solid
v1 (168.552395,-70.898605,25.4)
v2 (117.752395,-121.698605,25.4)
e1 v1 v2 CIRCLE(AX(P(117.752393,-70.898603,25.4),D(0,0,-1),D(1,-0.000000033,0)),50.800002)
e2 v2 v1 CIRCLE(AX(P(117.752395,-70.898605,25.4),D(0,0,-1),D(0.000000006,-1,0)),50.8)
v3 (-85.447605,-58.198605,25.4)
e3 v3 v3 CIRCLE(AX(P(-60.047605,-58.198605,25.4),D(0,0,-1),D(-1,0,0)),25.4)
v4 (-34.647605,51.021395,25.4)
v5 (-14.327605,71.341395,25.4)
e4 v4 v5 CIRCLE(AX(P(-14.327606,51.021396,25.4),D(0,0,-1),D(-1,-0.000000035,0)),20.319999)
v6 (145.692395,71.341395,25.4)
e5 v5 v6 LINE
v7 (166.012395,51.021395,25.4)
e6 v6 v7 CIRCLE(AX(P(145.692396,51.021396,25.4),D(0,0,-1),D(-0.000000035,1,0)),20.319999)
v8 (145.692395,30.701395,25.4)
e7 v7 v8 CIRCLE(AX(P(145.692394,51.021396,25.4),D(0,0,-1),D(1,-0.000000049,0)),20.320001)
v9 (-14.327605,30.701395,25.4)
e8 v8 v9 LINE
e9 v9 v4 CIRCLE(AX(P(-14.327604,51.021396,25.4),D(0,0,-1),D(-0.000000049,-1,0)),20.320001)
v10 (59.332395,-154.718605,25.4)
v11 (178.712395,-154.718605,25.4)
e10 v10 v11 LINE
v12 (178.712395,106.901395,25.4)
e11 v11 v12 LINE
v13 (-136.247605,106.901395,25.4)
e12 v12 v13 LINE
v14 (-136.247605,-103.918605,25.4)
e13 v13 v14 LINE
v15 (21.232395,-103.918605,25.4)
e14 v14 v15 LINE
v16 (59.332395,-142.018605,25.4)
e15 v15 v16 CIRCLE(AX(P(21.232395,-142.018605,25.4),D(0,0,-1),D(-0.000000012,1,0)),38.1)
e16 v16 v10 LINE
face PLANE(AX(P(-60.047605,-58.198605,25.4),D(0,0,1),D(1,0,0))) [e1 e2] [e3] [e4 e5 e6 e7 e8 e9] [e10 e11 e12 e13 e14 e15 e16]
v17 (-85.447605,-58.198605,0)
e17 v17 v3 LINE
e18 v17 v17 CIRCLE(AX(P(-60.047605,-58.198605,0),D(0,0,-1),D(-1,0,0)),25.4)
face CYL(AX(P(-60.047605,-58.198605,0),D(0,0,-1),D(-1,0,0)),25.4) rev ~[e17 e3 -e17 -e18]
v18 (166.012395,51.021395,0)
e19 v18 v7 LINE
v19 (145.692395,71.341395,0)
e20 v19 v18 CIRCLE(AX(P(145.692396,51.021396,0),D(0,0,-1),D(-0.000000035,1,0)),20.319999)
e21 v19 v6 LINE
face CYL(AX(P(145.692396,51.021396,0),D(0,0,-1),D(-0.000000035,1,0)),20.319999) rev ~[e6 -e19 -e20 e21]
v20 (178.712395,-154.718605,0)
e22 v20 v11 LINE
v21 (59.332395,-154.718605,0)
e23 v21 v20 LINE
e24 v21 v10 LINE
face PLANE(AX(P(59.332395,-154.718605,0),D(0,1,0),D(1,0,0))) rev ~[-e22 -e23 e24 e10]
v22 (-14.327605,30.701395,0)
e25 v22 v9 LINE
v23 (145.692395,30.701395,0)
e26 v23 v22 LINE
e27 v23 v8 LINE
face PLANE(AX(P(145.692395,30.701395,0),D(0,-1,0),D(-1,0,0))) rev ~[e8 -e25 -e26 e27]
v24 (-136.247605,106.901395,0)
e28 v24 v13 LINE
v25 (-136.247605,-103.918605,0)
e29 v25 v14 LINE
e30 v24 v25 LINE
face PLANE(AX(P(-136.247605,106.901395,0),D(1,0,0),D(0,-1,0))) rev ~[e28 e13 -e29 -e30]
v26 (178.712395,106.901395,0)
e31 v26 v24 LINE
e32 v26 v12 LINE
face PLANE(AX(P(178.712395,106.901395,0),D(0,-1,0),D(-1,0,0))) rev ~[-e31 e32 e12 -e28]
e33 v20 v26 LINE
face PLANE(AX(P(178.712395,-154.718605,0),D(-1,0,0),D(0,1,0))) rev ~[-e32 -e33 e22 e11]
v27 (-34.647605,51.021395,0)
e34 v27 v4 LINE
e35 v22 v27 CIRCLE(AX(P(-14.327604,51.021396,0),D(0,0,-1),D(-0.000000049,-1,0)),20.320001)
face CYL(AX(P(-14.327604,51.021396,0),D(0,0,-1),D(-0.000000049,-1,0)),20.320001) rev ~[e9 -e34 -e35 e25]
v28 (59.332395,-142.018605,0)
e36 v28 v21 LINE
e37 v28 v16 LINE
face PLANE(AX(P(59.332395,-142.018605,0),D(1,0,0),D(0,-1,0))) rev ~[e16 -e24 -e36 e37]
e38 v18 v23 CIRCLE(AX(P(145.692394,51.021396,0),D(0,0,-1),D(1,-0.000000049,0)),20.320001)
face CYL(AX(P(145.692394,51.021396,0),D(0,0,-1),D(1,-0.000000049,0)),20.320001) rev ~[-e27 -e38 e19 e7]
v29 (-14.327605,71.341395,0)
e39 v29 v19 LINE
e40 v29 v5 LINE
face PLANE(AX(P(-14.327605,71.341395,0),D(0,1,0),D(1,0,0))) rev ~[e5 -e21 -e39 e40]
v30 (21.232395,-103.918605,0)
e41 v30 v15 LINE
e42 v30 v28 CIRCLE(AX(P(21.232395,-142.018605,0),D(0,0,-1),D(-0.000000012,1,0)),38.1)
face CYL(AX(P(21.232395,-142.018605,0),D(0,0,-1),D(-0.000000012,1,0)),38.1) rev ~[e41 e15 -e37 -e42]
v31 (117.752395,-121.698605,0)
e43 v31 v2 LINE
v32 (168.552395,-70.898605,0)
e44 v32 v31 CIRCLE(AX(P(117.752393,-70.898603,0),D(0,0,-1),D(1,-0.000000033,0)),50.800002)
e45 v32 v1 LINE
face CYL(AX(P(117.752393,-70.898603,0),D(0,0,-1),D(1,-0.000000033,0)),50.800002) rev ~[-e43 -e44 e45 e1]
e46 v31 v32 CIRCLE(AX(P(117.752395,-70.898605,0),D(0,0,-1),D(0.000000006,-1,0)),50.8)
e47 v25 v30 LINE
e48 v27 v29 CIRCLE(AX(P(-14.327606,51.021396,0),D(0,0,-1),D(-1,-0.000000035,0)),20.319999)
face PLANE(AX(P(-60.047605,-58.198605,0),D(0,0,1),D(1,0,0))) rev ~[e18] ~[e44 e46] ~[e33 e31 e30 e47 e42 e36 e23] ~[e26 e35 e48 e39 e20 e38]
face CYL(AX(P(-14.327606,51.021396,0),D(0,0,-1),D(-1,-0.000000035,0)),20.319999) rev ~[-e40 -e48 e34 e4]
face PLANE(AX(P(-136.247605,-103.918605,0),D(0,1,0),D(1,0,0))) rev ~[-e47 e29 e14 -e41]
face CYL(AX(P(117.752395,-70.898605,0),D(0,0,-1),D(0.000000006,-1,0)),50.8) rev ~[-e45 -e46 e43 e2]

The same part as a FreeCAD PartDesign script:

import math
import FreeCAD as App
import Part
import Sketcher

V = App.Vector
Q = App.Units.Quantity

doc = App.newDocument("Part")
body = doc.addObject("PartDesign::Body", "Body")

sketch1 = body.newObject("Sketcher::SketchObject", "Sketch")
sketch1.AttachmentSupport = (doc.getObject("XY_Plane"), [""])
sketch1.MapMode = "FlatFace"
sketch1.addGeometry([
    Part.LineSegment(V(178.712395, 106.901395, 0), V(-136.247605, 106.901395, 0)),
    Part.LineSegment(V(-136.247605, 106.901395, 0), V(-136.247605, -103.918605, 0)),
    Part.LineSegment(V(-136.247605, -103.918605, 0), V(21.232395, -103.918605, 0)),
    Part.ArcOfCircle(Part.Circle(V(21.232395, -142.018605, 0), V(0, 0, 1), 38.1), math.radians(-0.000001), math.radians(90.000001)),
    Part.LineSegment(V(59.332395, -142.018605, 0), V(59.332395, -154.718605, 0)),
    Part.LineSegment(V(59.332395, -154.718605, 0), V(178.712395, -154.718605, 0)),
    Part.LineSegment(V(178.712395, -154.718605, 0), V(178.712395, 106.901395, 0)),
    Part.Circle(V(-60.047605, -58.198605, 0), V(0, 0, 1), 25.4),
    Part.ArcOfCircle(Part.Circle(V(117.752395, -70.898605, 0), V(0, 0, 1), 50.8), math.radians(0), math.radians(270)),
    Part.ArcOfCircle(Part.Circle(V(117.752393, -70.898603, 0), V(0, 0, 1), 50.800002), math.radians(-89.999998), math.radians(-0.000002)),
    Part.ArcOfCircle(Part.Circle(V(-14.327606, 51.021396, 0), V(0, 0, 1), 20.319999), math.radians(89.999998), math.radians(180.000002)),
    Part.LineSegment(V(-14.327605, 71.341395, 0), V(145.692395, 71.341395, 0)),
    Part.ArcOfCircle(Part.Circle(V(145.692396, 51.021396, 0), V(0, 0, 1), 20.319999), math.radians(-0.000002), math.radians(90.000002)),
    Part.ArcOfCircle(Part.Circle(V(145.692394, 51.021396, 0), V(0, 0, 1), 20.320001), math.radians(-89.999997), math.radians(-0.000003)),
    Part.LineSegment(V(145.692395, 30.701395, 0), V(-14.327605, 30.701395, 0)),
    Part.ArcOfCircle(Part.Circle(V(-14.327604, 51.021396, 0), V(0, 0, 1), 20.320001), math.radians(-179.999997), math.radians(-90.000003)),
], False)
sketch1.addConstraint([
    Sketcher.Constraint("Coincident", 0, 2, 1, 1),
    Sketcher.Constraint("Coincident", 1, 2, 2, 1),
    Sketcher.Constraint("Tangent", 2, 2, 3, 2),
    Sketcher.Constraint("Tangent", 3, 1, 4, 1),
    Sketcher.Constraint("Coincident", 4, 2, 5, 1),
    Sketcher.Constraint("Coincident", 5, 2, 6, 1),
    Sketcher.Constraint("Coincident", 6, 2, 0, 1),
    Sketcher.Constraint("Tangent", 8, 1, 9, 2),
    Sketcher.Constraint("Coincident", 9, 1, 8, 2),
    Sketcher.Constraint("Tangent", 10, 1, 11, 1),
    Sketcher.Constraint("Tangent", 11, 2, 12, 2),
    Sketcher.Constraint("Tangent", 12, 1, 13, 2),
    Sketcher.Constraint("Tangent", 13, 1, 14, 1),
    Sketcher.Constraint("Tangent", 14, 2, 15, 2),
    Sketcher.Constraint("Tangent", 15, 1, 10, 2),
    Sketcher.Constraint("Horizontal", 0),
    Sketcher.Constraint("Vertical", 1),
    Sketcher.Constraint("Horizontal", 2),
    Sketcher.Constraint("Vertical", 4),
    Sketcher.Constraint("Horizontal", 5),
    Sketcher.Constraint("Vertical", 6),
    Sketcher.Constraint("Horizontal", 11),
    Sketcher.Constraint("Horizontal", 14),
    Sketcher.Constraint("Equal", 10, 12),
    Sketcher.Constraint("Equal", 12, 13),
    Sketcher.Constraint("Horizontal", 9, 3, 8, 1),
    Sketcher.Constraint("Horizontal", 15, 3, 12, 1),
    Sketcher.Constraint("Horizontal", 12, 1, 15, 1),
    Sketcher.Constraint("Vertical", 8, 3, 9, 1),
    Sketcher.Constraint("Diameter", 7, Q("2 in")),
    Sketcher.Constraint("Radius", 8, Q("2 in")),
    Sketcher.Constraint("Radius", 3, Q("1.5 in")),
    Sketcher.Constraint("Radius", 10, Q("0.8 in")),
    Sketcher.Constraint("DistanceX", 0, 2, 0, 1, Q("12.4 in")),
    Sketcher.Constraint("DistanceX", 2, 1, 2, 2, Q("6.2 in")),
    Sketcher.Constraint("DistanceX", 11, 1, 11, 2, Q("6.3 in")),
    Sketcher.Constraint("DistanceY", 1, 2, 1, 1, Q("8.3 in")),
    Sketcher.Constraint("DistanceY", 4, 2, 4, 1, Q("0.5 in")),
    Sketcher.Constraint("DistanceX", 7, 3, 8, 3, Q("7 in")),
    Sketcher.Constraint("DistanceX", 0, 2, 7, 3, Q("3 in")),
    Sketcher.Constraint("DistanceY", 9, 3, 6, 2, Q("6.9999999 in")),
    Sketcher.Constraint("DistanceY", 13, 1, 6, 2, Q("3 in")),
    Sketcher.Constraint("DistanceX", 7, 3, 15, 1, Q("1 in")),
    Sketcher.Constraint("DistanceY", 3, 3, 7, 3, Q("3.3 in")),
    Sketcher.Constraint("DistanceX", -1, 1, 3, 3, Q("21.232395 mm")),
    Sketcher.Constraint("DistanceY", 3, 3, -1, 1, Q("142.018605 mm")),
])
pad1 = body.newObject("PartDesign::Pad", "Pad")
pad1.Profile = sketch1
pad1.Length = Q("1 in")

doc.recompute()
